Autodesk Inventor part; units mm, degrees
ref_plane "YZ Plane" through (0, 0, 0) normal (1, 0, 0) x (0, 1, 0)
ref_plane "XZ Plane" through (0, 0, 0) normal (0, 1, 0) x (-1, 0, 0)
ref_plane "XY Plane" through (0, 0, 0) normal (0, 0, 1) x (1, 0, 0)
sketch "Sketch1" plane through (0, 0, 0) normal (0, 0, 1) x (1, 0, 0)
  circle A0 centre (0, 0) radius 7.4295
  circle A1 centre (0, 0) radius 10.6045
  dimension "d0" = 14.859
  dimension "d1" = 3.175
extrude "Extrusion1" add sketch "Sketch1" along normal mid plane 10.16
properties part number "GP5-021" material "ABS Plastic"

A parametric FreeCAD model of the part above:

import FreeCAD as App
import Part
import Sketcher

V = App.Vector
Q = App.Units.Quantity

doc = App.newDocument("Part")
params = doc.addObject("Spreadsheet::Sheet", "Params")
for row, (alias, value) in enumerate([
    ("sketch1_diameter", "0.585 in"),
    ("sketch1_diameter2", "0.835 in"),
    ("pad1_length", "0.4 in"),
], start=1):
    params.set(f"A{row}", alias)
    params.set(f"B{row}", "=" + value)
    params.setAlias(f"B{row}", alias)

body = doc.addObject("PartDesign::Body", "Body")

# Sketch on XY plane
sketch1 = body.newObject("Sketcher::SketchObject", "Sketch")
sketch1.AttachmentSupport = (doc.getObject("XY_Plane"), [""])
sketch1.MapMode = "FlatFace"
sketch1.addGeometry(Part.Circle(V(0, 0, 0), V(0, 0, 1), 11), False)
sketch1.addGeometry(Part.Circle(V(0, 0, 0), V(0, 0, 1), 7), False)
sketch1.addConstraint(Sketcher.Constraint("Coincident", 0, 3, -1, 1))
sketch1.addConstraint(Sketcher.Constraint("Coincident", 1, 3, -1, 1))
sketch1.addConstraint(Sketcher.Constraint("Diameter", 1, Q("0.585 in")))
sketch1.addConstraint(Sketcher.Constraint("Diameter", 0, Q("0.835 in")))
sketch1.setExpression("Constraints[2]", "Params.sketch1_diameter")
sketch1.setExpression("Constraints[3]", "Params.sketch1_diameter2")
pad1 = body.newObject("PartDesign::Pad", "Pad")
pad1.Profile = sketch1
pad1.setExpression("Length", "Params.pad1_length")
pad1.Midplane = True

doc.recompute()
